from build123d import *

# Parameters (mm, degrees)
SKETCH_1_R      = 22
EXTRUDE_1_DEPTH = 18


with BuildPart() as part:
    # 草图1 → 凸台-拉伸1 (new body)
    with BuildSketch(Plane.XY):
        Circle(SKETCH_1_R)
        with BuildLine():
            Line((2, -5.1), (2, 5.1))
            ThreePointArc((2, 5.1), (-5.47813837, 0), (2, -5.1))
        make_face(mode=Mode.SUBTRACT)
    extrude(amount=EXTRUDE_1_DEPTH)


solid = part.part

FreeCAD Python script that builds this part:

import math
import FreeCAD as App
import Part
import Sketcher
from FreeCAD import Vector
Q = App.Units.Quantity

doc = App.newDocument("Part")
body = doc.addObject("PartDesign::Body", "Body")

sketch1 = doc.addObject("Sketcher::SketchObject", "Sketch")
body.addObject(sketch1)
sketch1.AttachmentSupport = (doc.XY_Plane, [""])
sketch1.MapMode = "FlatFace"
sketch1.addGeometry(Part.Circle(Vector(0, 0, 0), Vector(0, 0, 1), 22), False)
sketch1.addGeometry(Part.LineSegment(Vector(2, 5.1, 0), Vector(2, -5.1, 0)), False)
sketch1.addGeometry(Part.ArcOfCircle(Part.Circle(Vector(0, 0, 0), Vector(0, 0, 1), 5.478138), math.radians(68.587031), math.radians(291.412969)), False)
sketch1.addConstraint(Sketcher.Constraint("Coincident", 1, 1, 2, 1))
sketch1.addConstraint(Sketcher.Constraint("Coincident", 2, 2, 1, 2))
sketch1.addConstraint(Sketcher.Constraint("Vertical", 1))
sketch1.addConstraint(Sketcher.Constraint("Coincident", 0, 3, -1, 1))
sketch1.addConstraint(Sketcher.Constraint("Coincident", 2, 3, -1, 1))
sketch1.addConstraint(Sketcher.Constraint("Diameter", 0, Q("44 mm")))
sketch1.addConstraint(Sketcher.Constraint("DistanceY", 1, 2, 1, 1, Q("10.2 mm")))
sketch1.addConstraint(Sketcher.Constraint("DistanceX", -1, 1, 1, 1, Q("2 mm")))
pad1 = doc.addObject("PartDesign::Pad", "Pad")
body.addObject(pad1)
pad1.Profile = sketch1
pad1.Length = 18

doc.recompute()
